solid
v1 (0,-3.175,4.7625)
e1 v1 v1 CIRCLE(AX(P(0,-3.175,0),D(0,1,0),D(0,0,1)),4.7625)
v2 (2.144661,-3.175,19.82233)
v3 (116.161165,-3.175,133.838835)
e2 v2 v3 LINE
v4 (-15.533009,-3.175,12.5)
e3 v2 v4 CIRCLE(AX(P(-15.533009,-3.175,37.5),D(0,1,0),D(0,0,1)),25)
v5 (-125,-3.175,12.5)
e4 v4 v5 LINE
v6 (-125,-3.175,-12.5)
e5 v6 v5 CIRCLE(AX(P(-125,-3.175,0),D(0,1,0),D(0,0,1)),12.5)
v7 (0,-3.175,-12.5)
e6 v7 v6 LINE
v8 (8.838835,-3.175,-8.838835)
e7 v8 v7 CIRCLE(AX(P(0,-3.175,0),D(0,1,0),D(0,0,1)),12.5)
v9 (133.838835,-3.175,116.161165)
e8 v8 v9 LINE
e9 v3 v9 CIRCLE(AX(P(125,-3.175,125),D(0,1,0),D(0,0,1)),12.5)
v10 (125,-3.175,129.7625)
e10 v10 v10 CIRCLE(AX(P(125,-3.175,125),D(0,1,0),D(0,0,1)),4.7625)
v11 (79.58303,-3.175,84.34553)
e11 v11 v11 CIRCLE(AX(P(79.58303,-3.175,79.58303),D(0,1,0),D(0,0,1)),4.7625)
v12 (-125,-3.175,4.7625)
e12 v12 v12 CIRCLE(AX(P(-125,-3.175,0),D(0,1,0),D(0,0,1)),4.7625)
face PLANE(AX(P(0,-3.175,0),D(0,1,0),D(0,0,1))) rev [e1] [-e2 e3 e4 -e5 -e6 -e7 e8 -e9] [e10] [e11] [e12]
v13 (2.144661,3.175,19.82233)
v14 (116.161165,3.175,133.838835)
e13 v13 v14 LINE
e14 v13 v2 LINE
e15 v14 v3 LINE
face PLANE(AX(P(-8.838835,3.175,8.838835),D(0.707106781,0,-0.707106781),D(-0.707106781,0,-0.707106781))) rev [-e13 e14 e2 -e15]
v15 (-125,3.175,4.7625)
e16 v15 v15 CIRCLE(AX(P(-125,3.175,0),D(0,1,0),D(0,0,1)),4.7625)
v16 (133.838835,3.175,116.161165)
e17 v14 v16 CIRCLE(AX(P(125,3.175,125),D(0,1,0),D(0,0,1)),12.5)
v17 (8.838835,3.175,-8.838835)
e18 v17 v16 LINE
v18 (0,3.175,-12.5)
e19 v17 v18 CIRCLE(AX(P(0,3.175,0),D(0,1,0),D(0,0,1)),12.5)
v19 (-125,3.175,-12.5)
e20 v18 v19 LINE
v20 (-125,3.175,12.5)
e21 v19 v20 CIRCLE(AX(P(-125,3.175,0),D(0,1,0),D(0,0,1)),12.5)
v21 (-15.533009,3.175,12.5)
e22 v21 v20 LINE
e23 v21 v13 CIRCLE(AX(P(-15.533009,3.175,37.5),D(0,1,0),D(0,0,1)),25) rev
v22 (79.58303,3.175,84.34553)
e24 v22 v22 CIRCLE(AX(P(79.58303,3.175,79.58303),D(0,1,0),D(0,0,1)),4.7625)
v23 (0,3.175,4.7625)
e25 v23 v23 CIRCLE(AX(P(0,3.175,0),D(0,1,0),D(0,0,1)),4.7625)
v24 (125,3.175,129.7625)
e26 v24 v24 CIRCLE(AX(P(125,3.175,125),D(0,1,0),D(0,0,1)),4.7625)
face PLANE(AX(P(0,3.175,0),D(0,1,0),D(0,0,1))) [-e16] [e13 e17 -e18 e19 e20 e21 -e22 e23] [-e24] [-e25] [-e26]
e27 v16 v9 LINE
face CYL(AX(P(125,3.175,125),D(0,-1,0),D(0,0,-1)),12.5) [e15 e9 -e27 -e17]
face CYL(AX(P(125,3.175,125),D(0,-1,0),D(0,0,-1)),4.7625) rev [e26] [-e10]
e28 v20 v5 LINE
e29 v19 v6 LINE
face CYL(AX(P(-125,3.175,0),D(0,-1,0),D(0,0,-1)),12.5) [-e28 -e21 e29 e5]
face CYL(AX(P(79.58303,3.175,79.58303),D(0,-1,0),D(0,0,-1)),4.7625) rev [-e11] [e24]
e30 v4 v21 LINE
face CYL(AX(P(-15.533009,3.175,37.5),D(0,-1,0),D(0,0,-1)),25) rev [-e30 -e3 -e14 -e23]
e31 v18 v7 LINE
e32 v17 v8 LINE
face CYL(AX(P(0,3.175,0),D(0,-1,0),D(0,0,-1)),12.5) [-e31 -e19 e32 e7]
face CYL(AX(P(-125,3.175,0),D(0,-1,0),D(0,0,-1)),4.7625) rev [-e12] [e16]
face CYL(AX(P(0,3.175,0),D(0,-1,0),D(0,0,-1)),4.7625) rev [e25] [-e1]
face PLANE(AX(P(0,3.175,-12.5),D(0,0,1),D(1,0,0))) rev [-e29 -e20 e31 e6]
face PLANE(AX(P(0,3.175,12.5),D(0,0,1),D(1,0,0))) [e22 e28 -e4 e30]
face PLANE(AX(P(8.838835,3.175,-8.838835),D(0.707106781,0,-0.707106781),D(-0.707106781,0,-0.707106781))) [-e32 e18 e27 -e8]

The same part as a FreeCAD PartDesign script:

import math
import FreeCAD as App
import Part
import Sketcher
Q = App.Units.Quantity


def edges_at(feature, points):
    """Names of the edges that pass closest to the given points."""
    edges = feature.Shape.Edges
    near = lambda p: min(range(len(edges)), key=lambda i: edges[i].distToShape(Part.Vertex(*p))[0])
    return sorted({f"Edge{near(p) + 1}" for p in points})

doc = App.newDocument("Part")
body = doc.addObject("PartDesign::Body", "Body")

# Sketch on XZ plane
sketch1 = body.newObject("Sketcher::SketchObject", "Sketch")
sketch1.AttachmentSupport = (doc.getObject("XZ_Plane"), [""])
sketch1.MapMode = "FlatFace"
sketch1.addGeometry(Part.LineSegment(App.Vector(-125, 12.5, 0), App.Vector(-5.17767, 12.5, 0)), False)
sketch1.addGeometry(Part.LineSegment(App.Vector(-5.17767, 12.5, 0), App.Vector(116.161165, 133.838835, 0)), False)
sketch1.addGeometry(Part.ArcOfCircle(Part.Circle(App.Vector(125, 125, 0), App.Vector(0, 0, 1), 12.5), math.radians(-45), math.radians(135)), False)
sketch1.addGeometry(Part.LineSegment(App.Vector(133.838835, 116.161165, 0), App.Vector(8.838835, -8.838835, 0)), False)
sketch1.addGeometry(Part.ArcOfCircle(Part.Circle(App.Vector(0, 0, 0), App.Vector(0, 0, 1), 12.5), math.radians(-90), math.radians(-45)), False)
sketch1.addGeometry(Part.LineSegment(App.Vector(0, -12.5, 0), App.Vector(-125, -12.5, 0)), False)
sketch1.addGeometry(Part.ArcOfCircle(Part.Circle(App.Vector(-125, 0, 0), App.Vector(0, 0, 1), 12.5), math.radians(90), math.radians(270)), False)
sketch1.addGeometry(Part.Circle(App.Vector(-125, 0, 0), App.Vector(0, 0, 1), 4.7625), False)
sketch1.addGeometry(Part.Circle(App.Vector(0, 0, 0), App.Vector(0, 0, 1), 4.7625), False)
sketch1.addGeometry(Part.Circle(App.Vector(125, 125, 0), App.Vector(0, 0, 1), 4.7625), False)
sketch1.addGeometry(Part.Circle(App.Vector(79.58303, 79.58303, 0), App.Vector(0, 0, 1), 4.7625), False)
sketch1.addConstraint(Sketcher.Constraint("Coincident", 0, 2, 1, 1))
sketch1.addConstraint(Sketcher.Constraint("Tangent", 1, 2, 2, 2))
sketch1.addConstraint(Sketcher.Constraint("Tangent", 2, 1, 3, 1))
sketch1.addConstraint(Sketcher.Constraint("Tangent", 3, 2, 4, 2))
sketch1.addConstraint(Sketcher.Constraint("Tangent", 4, 1, 5, 1))
sketch1.addConstraint(Sketcher.Constraint("Tangent", 5, 2, 6, 2))
sketch1.addConstraint(Sketcher.Constraint("Tangent", 6, 1, 0, 1))
sketch1.addConstraint(Sketcher.Constraint("Horizontal", 0))
sketch1.addConstraint(Sketcher.Constraint("Horizontal", 5))
sketch1.addConstraint(Sketcher.Constraint("Coincident", 4, 3, -1, 1))
sketch1.addConstraint(Sketcher.Constraint("Coincident", 8, 3, -1, 1))
sketch1.addConstraint(Sketcher.Constraint("Coincident", 7, 3, 6, 3))
sketch1.addConstraint(Sketcher.Constraint("Coincident", 9, 3, 2, 3))
sketch1.addConstraint(Sketcher.Constraint("Equal", 2, 4))
sketch1.addConstraint(Sketcher.Constraint("Equal", 4, 6))
sketch1.addConstraint(Sketcher.Constraint("Equal", 7, 8))
sketch1.addConstraint(Sketcher.Constraint("Equal", 8, 9))
sketch1.addConstraint(Sketcher.Constraint("Equal", 9, 10))
sketch1.addConstraint(Sketcher.Constraint("Parallel", 1, 3))
sketch1.addConstraint(Sketcher.Constraint("Radius", 2, Q("12.5 mm")))
sketch1.addConstraint(Sketcher.Constraint("DistanceX", 5, 2, 5, 1, Q("125 mm")))
sketch1.addConstraint(Sketcher.Constraint("Angle", 1, Q("45 deg")))
sketch1.addConstraint(Sketcher.Constraint("Diameter", 7, Q("9.525 mm")))
sketch1.addConstraint(Sketcher.Constraint("DistanceX", -1, 1, 2, 3, Q("125 mm")))
sketch1.addConstraint(Sketcher.Constraint("DistanceX", 0, 2, 10, 3, Q("84.760699 mm")))
sketch1.addConstraint(Sketcher.Constraint("DistanceY", -1, 1, 10, 3, Q("79.58303 mm")))
pad1 = body.newObject("PartDesign::Pad", "Pad")
pad1.Profile = sketch1
pad1.Length = 6.35
pad1.Midplane = True
doc.recompute()

fillet = body.newObject("PartDesign::Fillet", "Fillet")
fillet.Base = (pad1, edges_at(pad1, [(-5.178, 0, 12.5)]))
fillet.Radius = 25

doc.recompute()
